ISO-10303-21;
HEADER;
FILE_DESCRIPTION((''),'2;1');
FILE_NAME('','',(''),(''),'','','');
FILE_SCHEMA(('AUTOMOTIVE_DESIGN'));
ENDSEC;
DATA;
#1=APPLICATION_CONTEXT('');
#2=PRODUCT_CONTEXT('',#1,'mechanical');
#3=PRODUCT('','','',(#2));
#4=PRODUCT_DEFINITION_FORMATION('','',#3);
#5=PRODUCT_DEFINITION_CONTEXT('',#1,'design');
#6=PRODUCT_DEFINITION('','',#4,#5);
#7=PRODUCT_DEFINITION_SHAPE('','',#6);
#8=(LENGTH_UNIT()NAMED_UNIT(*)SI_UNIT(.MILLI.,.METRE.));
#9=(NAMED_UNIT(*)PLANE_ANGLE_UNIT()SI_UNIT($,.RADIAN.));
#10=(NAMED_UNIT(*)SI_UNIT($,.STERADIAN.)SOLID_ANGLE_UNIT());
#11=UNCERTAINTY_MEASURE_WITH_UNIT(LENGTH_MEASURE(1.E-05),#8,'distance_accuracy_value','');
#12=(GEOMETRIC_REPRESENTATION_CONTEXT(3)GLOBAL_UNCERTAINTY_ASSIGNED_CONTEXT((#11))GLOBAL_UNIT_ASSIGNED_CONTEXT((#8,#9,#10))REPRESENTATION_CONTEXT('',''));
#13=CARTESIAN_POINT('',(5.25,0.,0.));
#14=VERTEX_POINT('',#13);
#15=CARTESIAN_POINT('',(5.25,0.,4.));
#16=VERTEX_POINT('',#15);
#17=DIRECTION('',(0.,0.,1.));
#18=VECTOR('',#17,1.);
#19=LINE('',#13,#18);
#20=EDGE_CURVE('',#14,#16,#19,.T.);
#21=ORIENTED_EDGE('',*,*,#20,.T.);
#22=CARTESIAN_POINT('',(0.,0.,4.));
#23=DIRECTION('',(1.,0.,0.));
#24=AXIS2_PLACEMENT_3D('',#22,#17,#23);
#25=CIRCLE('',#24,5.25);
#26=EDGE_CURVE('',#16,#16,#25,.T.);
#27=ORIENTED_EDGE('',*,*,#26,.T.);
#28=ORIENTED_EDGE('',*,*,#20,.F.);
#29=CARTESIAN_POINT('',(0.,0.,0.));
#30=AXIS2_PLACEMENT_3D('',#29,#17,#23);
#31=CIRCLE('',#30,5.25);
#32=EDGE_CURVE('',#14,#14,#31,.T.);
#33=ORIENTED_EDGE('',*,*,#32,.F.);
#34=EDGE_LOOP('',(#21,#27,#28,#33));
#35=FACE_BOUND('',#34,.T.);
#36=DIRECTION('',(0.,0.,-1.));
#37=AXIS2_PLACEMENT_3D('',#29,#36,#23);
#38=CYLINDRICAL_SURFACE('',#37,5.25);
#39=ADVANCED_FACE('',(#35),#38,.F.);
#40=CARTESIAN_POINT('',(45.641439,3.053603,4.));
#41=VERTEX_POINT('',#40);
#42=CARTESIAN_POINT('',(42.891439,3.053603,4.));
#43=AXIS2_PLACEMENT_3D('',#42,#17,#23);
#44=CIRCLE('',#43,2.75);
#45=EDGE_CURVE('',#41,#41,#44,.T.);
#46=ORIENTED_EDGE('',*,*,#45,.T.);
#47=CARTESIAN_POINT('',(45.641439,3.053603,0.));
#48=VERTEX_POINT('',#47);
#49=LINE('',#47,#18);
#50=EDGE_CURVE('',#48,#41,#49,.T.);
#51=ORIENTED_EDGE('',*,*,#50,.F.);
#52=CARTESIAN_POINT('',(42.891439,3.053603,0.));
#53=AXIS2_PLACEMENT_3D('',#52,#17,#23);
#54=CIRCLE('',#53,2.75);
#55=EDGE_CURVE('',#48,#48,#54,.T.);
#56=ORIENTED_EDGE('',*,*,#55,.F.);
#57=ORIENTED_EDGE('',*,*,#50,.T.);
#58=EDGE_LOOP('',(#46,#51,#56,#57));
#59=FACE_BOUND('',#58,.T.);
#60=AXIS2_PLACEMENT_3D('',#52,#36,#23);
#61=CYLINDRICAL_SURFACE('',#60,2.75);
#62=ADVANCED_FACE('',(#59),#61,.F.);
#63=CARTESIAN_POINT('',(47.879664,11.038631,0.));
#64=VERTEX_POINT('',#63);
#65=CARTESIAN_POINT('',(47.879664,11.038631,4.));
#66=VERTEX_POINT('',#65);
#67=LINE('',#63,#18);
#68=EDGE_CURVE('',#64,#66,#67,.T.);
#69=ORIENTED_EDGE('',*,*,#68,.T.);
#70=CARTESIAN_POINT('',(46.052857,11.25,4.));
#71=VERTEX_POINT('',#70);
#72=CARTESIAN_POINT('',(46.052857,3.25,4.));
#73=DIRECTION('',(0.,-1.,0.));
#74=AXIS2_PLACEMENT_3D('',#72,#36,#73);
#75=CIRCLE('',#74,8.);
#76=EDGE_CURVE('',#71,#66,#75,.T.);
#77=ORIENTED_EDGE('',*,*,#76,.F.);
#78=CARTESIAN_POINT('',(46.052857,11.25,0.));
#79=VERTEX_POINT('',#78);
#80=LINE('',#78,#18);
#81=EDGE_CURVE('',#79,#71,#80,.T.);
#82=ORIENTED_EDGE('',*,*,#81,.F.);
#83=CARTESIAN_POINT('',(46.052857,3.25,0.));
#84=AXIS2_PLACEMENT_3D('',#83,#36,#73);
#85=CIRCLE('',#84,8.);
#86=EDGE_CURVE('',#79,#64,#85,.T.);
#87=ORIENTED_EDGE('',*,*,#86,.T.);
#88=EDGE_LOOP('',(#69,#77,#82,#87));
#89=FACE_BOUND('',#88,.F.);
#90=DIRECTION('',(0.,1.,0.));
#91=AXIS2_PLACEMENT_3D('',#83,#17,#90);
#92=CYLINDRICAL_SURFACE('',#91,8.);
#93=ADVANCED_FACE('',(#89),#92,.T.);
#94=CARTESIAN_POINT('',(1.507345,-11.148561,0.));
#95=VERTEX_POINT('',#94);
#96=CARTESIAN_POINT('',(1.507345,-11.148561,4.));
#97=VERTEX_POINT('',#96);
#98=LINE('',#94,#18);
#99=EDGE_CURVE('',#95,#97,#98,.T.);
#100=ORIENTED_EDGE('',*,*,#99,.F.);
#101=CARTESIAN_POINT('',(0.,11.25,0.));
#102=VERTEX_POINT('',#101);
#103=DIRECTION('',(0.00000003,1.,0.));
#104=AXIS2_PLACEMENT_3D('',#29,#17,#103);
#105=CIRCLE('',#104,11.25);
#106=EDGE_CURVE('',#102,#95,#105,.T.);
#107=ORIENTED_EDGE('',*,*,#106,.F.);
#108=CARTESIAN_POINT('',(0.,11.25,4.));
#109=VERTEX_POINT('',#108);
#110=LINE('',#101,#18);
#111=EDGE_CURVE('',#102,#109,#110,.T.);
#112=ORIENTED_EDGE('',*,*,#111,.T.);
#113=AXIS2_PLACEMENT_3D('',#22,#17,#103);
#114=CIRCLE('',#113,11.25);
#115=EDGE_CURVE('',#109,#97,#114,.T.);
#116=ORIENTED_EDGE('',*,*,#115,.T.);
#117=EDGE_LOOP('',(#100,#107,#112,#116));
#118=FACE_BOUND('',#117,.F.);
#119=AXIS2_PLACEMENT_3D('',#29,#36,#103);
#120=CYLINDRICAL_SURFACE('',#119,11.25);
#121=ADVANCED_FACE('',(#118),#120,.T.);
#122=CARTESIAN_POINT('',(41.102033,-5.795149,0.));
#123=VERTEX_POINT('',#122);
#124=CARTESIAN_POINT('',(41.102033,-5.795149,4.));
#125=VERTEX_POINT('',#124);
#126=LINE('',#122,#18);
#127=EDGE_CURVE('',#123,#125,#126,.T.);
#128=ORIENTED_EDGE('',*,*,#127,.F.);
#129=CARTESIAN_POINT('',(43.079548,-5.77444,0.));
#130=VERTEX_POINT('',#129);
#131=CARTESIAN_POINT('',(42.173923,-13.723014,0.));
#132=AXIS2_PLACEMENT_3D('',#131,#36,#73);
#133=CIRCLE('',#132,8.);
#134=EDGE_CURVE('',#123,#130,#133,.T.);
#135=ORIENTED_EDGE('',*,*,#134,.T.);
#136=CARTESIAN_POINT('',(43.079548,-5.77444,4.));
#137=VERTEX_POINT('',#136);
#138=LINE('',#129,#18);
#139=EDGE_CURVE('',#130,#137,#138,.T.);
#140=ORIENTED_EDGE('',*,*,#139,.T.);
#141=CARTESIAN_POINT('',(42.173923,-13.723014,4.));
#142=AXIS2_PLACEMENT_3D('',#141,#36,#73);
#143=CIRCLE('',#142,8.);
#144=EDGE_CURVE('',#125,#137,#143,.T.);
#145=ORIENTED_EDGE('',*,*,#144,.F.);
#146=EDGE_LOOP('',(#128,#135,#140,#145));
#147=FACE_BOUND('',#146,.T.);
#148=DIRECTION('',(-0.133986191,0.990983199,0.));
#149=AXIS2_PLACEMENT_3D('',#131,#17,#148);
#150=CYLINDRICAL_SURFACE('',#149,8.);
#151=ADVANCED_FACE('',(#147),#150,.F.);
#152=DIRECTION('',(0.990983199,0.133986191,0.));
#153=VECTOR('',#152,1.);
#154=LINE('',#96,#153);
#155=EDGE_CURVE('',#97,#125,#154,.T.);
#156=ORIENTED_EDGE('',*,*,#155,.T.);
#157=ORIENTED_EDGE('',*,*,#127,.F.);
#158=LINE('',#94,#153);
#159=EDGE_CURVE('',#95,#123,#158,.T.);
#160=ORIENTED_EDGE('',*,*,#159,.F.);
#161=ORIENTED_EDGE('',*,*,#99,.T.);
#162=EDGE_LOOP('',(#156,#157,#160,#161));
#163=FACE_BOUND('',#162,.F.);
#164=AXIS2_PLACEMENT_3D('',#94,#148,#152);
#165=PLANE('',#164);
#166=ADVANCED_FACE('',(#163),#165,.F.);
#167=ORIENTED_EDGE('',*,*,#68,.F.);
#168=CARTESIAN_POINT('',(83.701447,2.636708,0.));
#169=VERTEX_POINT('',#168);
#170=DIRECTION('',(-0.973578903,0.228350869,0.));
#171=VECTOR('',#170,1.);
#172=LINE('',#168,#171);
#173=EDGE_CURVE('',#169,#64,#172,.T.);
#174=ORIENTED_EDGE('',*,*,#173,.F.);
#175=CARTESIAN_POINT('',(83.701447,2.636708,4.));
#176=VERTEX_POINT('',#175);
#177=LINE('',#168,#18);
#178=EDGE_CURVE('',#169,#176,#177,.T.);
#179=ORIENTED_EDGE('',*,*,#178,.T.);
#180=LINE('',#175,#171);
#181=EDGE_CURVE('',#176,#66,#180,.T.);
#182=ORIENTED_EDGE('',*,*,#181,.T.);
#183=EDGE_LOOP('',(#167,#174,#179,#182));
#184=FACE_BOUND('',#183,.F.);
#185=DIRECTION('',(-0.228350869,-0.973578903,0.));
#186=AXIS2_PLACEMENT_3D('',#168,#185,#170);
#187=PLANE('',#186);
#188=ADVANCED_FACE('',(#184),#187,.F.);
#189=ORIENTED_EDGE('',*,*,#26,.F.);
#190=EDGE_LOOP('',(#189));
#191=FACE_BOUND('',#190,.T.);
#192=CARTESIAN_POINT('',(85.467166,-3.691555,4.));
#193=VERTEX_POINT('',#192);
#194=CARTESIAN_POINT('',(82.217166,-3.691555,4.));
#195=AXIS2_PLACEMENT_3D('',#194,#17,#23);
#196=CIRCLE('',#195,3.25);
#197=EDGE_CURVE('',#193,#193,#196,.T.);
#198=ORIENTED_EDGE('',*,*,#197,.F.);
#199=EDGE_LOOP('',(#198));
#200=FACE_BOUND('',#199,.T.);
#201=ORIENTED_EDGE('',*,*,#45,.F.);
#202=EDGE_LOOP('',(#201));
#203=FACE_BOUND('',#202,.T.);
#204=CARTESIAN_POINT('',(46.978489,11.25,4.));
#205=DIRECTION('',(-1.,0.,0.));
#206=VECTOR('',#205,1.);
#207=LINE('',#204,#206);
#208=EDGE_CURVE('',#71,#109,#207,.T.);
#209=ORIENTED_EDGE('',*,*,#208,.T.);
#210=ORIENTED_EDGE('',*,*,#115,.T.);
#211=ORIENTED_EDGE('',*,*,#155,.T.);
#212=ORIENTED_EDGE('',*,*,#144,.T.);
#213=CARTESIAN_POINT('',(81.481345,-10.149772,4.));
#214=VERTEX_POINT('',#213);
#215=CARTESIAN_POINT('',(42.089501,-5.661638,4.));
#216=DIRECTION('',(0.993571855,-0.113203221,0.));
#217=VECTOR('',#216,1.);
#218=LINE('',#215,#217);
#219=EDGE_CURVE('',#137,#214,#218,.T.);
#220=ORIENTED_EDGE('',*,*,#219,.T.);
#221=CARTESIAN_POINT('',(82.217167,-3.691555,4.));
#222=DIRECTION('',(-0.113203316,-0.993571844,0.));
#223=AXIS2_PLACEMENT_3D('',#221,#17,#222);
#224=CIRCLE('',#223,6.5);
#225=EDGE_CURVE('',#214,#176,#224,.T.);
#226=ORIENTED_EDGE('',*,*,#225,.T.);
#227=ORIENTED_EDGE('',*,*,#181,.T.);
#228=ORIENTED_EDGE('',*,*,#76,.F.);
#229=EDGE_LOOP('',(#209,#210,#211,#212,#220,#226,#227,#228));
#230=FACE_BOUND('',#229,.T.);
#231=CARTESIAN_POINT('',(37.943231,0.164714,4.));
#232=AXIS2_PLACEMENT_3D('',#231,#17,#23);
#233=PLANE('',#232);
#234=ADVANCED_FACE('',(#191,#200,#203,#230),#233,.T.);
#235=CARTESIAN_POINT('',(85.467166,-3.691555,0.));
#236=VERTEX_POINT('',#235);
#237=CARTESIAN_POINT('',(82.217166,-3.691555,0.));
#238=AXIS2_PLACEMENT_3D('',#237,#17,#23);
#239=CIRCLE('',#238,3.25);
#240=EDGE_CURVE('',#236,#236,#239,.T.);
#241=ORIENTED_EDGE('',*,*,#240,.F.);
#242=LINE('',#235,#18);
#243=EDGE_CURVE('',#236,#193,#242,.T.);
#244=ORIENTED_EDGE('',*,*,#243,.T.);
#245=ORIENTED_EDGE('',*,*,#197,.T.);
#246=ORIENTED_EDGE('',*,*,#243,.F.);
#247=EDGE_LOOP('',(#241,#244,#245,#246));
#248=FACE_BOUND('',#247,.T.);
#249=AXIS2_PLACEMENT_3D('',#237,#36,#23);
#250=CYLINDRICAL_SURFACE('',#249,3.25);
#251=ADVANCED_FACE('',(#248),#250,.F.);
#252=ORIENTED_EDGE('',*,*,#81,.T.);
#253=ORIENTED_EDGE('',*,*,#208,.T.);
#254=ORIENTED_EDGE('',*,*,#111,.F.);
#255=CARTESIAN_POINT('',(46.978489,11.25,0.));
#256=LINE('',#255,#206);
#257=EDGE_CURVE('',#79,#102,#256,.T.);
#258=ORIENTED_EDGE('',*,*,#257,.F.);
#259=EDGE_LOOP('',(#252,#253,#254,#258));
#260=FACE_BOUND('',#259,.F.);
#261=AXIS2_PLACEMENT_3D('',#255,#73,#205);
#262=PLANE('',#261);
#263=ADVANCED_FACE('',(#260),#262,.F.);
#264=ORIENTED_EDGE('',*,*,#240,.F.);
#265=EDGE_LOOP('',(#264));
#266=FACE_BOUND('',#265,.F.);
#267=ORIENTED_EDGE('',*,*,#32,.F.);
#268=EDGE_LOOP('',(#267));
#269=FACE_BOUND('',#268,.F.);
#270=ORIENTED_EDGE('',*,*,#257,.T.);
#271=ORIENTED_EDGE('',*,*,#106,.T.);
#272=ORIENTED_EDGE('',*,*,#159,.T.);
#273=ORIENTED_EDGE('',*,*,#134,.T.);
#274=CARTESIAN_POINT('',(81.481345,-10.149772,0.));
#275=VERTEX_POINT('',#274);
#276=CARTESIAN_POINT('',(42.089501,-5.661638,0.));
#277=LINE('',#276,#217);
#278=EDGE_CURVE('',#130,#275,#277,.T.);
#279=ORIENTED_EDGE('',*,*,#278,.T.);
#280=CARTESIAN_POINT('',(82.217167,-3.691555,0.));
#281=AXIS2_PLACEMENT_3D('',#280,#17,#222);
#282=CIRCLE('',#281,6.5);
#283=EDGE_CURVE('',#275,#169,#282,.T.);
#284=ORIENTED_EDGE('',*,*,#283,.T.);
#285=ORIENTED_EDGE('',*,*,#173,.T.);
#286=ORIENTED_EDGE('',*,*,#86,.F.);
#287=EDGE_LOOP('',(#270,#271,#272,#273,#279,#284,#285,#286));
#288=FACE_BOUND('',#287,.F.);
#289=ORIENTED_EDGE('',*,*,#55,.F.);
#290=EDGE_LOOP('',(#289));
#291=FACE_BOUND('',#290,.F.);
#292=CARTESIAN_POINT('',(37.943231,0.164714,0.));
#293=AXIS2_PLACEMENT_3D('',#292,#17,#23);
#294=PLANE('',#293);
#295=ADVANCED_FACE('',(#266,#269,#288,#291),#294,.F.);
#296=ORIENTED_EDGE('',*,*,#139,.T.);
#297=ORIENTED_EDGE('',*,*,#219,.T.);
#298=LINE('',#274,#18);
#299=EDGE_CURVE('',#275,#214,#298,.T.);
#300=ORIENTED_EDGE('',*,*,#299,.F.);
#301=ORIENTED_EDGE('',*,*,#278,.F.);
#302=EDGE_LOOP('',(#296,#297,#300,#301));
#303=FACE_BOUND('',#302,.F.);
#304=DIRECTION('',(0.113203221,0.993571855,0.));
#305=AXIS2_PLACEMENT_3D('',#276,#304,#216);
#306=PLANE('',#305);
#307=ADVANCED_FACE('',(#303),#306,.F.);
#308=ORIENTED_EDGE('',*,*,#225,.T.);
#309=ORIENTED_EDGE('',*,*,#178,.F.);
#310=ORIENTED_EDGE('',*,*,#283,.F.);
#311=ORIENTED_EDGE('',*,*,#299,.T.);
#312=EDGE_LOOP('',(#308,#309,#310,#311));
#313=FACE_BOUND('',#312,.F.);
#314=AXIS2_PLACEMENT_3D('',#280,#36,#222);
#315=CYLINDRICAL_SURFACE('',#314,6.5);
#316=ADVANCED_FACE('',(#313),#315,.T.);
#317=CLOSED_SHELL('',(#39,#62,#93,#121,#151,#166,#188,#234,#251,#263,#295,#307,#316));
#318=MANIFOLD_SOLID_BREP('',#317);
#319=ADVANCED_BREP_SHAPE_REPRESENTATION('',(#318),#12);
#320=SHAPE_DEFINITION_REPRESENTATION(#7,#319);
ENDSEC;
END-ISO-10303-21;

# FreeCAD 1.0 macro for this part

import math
import FreeCAD as App
import Part
import Sketcher
from FreeCAD import Vector
Q = App.Units.Quantity


def edges_at(feature, points):
    """Names of the edges that pass closest to the given points."""
    edges = feature.Shape.Edges
    near = lambda p: min(range(len(edges)), key=lambda i: edges[i].distToShape(Part.Vertex(*p))[0])
    return sorted({f"Edge{near(p) + 1}" for p in points})

doc = App.newDocument("Part")
body = doc.addObject("PartDesign::Body", "Body")

# Sketch on XY plane
sketch1 = body.newObject("Sketcher::SketchObject", "Sketch")
sketch1.AttachmentSupport = (doc.getObject("XY_Plane"), [""])
sketch1.MapMode = "FlatFace"
sketch1.addGeometry(Part.LineSegment(Vector(46.978489, 11.25, 0), Vector(0, 11.25, 0)), False)
sketch1.addGeometry(Part.ArcOfCircle(Part.Circle(Vector(0, 0, 0), Vector(0, 0, 1), 11.25), math.radians(89.999998), math.radians(277.700004)), False)
sketch1.addGeometry(Part.LineSegment(Vector(1.507345, -11.148561, 0), Vector(42.089501, -5.661638, 0)), False)
sketch1.addGeometry(Part.LineSegment(Vector(42.089501, -5.661638, 0), Vector(81.481345, -10.149772, 0)), False)
sketch1.addGeometry(Part.ArcOfCircle(Part.Circle(Vector(82.217167, -3.691555, 0), Vector(0, 0, 1), 6.5), math.radians(-96.500006), math.radians(76.800002)), False)
sketch1.addGeometry(Part.LineSegment(Vector(83.701447, 2.636708, 0), Vector(46.978489, 11.25, 0)), False)
sketch1.addGeometry(Part.Circle(Vector(82.217166, -3.691555, 0), Vector(0, 0, 1), 3.25), False)
sketch1.addGeometry(Part.Circle(Vector(0, 0, 0), Vector(0, 0, 1), 5.25), False)
sketch1.addGeometry(Part.Circle(Vector(42.891439, 3.053603, 0), Vector(0, 0, 1), 2.75), False)
sketch1.addConstraint(Sketcher.Constraint("Tangent", 0, 2, 1, 1))
sketch1.addConstraint(Sketcher.Constraint("Tangent", 1, 2, 2, 1))
sketch1.addConstraint(Sketcher.Constraint("Coincident", 2, 2, 3, 1))
sketch1.addConstraint(Sketcher.Constraint("Tangent", 3, 2, 4, 1))
sketch1.addConstraint(Sketcher.Constraint("Tangent", 4, 2, 5, 1))
sketch1.addConstraint(Sketcher.Constraint("Coincident", 5, 2, 0, 1))
sketch1.addConstraint(Sketcher.Constraint("Horizontal", 0))
sketch1.addConstraint(Sketcher.Constraint("Coincident", 1, 3, -1, 1))
sketch1.addConstraint(Sketcher.Constraint("Coincident", 7, 3, -1, 1))
sketch1.addConstraint(Sketcher.Constraint("Coincident", 6, 3, 4, 3))
sketch1.addConstraint(Sketcher.Constraint("Diameter", 6, Q("6.5 mm")))
sketch1.addConstraint(Sketcher.Constraint("Diameter", 7, Q("10.5 mm")))
sketch1.addConstraint(Sketcher.Constraint("Diameter", 8, Q("5.5 mm")))
sketch1.addConstraint(Sketcher.Constraint("Radius", 4, Q("6.5 mm")))
sketch1.addConstraint(Sketcher.Constraint("Radius", 1, Q("11.25 mm")))
sketch1.addConstraint(Sketcher.Constraint("Angle", 2, Q("7.7 deg")))
sketch1.addConstraint(Sketcher.Constraint("Angle", 3, Q("-6.5 deg")))
sketch1.addConstraint(Sketcher.Constraint("Angle", 5, Q("166.8 deg")))
sketch1.addConstraint(Sketcher.Constraint("DistanceX", 1, 2, 3, 2, Q("79.974 mm")))
sketch1.addConstraint(Sketcher.Constraint("Distance", 3, Q("39.646699 mm")))
sketch1.addConstraint(Sketcher.Constraint("DistanceX", -1, 1, 8, 3, Q("42.891439 mm")))
sketch1.addConstraint(Sketcher.Constraint("DistanceY", 2, 2, 8, 3, Q("8.715241 mm")))
pad1 = body.newObject("PartDesign::Pad", "Pad")
pad1.Profile = sketch1
pad1.Length = 4
doc.recompute()

fillet = body.newObject("PartDesign::Fillet", "Fillet")
fillet.Base = (pad1, edges_at(pad1, [(42.09, -5.662, 2), (46.978, 11.25, 2)]))
fillet.Radius = 8

doc.recompute()
